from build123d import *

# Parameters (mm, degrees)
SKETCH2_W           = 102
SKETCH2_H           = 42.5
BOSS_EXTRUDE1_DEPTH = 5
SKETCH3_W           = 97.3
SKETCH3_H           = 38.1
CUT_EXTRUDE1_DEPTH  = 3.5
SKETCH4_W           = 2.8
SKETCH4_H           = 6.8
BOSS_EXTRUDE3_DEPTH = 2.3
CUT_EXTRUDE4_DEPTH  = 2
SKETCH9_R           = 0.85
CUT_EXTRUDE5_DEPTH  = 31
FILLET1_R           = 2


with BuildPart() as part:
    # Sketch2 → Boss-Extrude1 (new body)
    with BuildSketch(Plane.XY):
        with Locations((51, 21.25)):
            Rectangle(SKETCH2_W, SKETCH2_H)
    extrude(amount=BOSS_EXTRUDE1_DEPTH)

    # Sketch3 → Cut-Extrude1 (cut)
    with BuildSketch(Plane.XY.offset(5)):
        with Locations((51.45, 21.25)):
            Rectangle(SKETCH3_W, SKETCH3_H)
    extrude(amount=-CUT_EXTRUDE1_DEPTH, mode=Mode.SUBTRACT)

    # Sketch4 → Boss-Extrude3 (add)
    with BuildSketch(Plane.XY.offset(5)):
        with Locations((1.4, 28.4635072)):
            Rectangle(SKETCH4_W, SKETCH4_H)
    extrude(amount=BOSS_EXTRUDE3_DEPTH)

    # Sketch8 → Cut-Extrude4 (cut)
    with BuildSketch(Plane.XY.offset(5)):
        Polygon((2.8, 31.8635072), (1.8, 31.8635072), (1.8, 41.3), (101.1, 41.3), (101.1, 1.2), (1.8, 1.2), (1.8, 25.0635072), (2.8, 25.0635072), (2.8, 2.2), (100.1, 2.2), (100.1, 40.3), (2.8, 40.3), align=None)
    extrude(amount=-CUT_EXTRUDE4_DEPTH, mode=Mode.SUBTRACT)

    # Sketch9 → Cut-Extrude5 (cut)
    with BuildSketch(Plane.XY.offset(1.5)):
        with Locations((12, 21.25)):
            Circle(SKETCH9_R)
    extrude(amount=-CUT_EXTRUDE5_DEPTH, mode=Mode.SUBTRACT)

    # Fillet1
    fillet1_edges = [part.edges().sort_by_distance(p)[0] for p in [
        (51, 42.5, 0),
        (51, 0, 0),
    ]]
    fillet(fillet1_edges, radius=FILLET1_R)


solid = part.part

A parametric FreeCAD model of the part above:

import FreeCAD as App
import Part
import Sketcher

V = App.Vector
Q = App.Units.Quantity


def edges_at(feature, points):
    """Names of the edges that pass closest to the given points."""
    edges = feature.Shape.Edges
    near = lambda p: min(range(len(edges)), key=lambda i: edges[i].distToShape(Part.Vertex(*p))[0])
    return sorted({f"Edge{near(p) + 1}" for p in points})


def add_polygon(sketch, points):
    """Adds a closed chain of lines whose ends are joined by coincident constraints."""
    first, n = sketch.GeometryCount, len(points)
    for a, b in zip(points, points[1:] + points[:1]):
        sketch.addGeometry(Part.LineSegment(App.Vector(*a, 0), App.Vector(*b, 0)), False)
    for i in range(n):
        sketch.addConstraint(Sketcher.Constraint("Coincident", first + i, 2, first + (i + 1) % n, 1))

doc = App.newDocument("Part")
params = doc.addObject("Spreadsheet::Sheet", "Params")
for row, (alias, value) in enumerate([
    ("sketch1_width", "102 mm"),
    ("sketch1_height", "42.5 mm"),
    ("pad1_length", "5 mm"),
    ("sketch2_width", "97.3 mm"),
    ("sketch2_height", "38.1 mm"),
    ("pocket1_length", "3.5 mm"),
    ("sketch3_width", "2.8 mm"),
    ("sketch3_height", "6.8 mm"),
    ("pad2_length", "2.3 mm"),
    ("sketch4_width", "1 mm"),
    ("sketch4_width2", "97.3 mm"),
    ("sketch4_width3", "99.3 mm"),
    ("sketch4_height", "38.1 mm"),
    ("sketch4_height2", "40.1 mm"),
    ("pocket2_length", "2 mm"),
    ("sketch5_diameter", "1.7 mm"),
    ("pocket3_length", "31 mm"),
    ("fillet_radius", "2 mm"),
], start=1):
    params.set(f"A{row}", alias)
    params.set(f"B{row}", "=" + value)
    params.setAlias(f"B{row}", alias)

body = doc.addObject("PartDesign::Body", "Body")

sketch1 = body.newObject("Sketcher::SketchObject", "Sketch")
sketch1.AttachmentSupport = (doc.getObject("XY_Plane"), [""])
sketch1.MapMode = "FlatFace"
add_polygon(sketch1, [(0, 42), (0, 0), (102, 0), (102, 42)])
sketch1.addConstraint(Sketcher.Constraint("Vertical", 0))
sketch1.addConstraint(Sketcher.Constraint("Horizontal", 1))
sketch1.addConstraint(Sketcher.Constraint("Vertical", 2))
sketch1.addConstraint(Sketcher.Constraint("Horizontal", 3))
sketch1.addConstraint(Sketcher.Constraint("Coincident", 0, 2, -1, 1))
sketch1.addConstraint(Sketcher.Constraint("DistanceX", 1, 1, 1, 2, Q("102 mm")))
sketch1.addConstraint(Sketcher.Constraint("DistanceY", 0, 2, 0, 1, Q("42.5 mm")))
sketch1.setExpression("Constraints[9]", "Params.sketch1_width")
sketch1.setExpression("Constraints[10]", "Params.sketch1_height")
pad1 = body.newObject("PartDesign::Pad", "Pad")
pad1.Profile = sketch1
pad1.setExpression("Length", "Params.pad1_length")

sketch2 = body.newObject("Sketcher::SketchObject", "Sketch001")
sketch2.AttachmentSupport = (doc.getObject("XY_Plane"), [""])
sketch2.MapMode = "FlatFace"
sketch2.AttachmentOffset = App.Placement(V(0, 0, 5), App.Rotation())
add_polygon(sketch2, [(3, 40), (3, 2), (100, 2), (100, 40)])
sketch2.addConstraint(Sketcher.Constraint("Vertical", 0))
sketch2.addConstraint(Sketcher.Constraint("Horizontal", 1))
sketch2.addConstraint(Sketcher.Constraint("Vertical", 2))
sketch2.addConstraint(Sketcher.Constraint("Horizontal", 3))
sketch2.addConstraint(Sketcher.Constraint("DistanceX", 1, 1, 1, 2, Q("97.3 mm")))
sketch2.addConstraint(Sketcher.Constraint("DistanceY", 0, 2, 0, 1, Q("38.1 mm")))
sketch2.addConstraint(Sketcher.Constraint("DistanceX", -1, 1, 0, 2, Q("2.8 mm")))
sketch2.addConstraint(Sketcher.Constraint("DistanceY", -1, 1, 0, 2, Q("2.2 mm")))
sketch2.setExpression("Constraints[8]", "Params.sketch2_width")
sketch2.setExpression("Constraints[9]", "Params.sketch2_height")
pocket1 = body.newObject("PartDesign::Pocket", "Pocket")
pocket1.Profile = sketch2
pocket1.setExpression("Length", "Params.pocket1_length")

sketch3 = body.newObject("Sketcher::SketchObject", "Sketch002")
sketch3.AttachmentSupport = (doc.getObject("XY_Plane"), [""])
sketch3.MapMode = "FlatFace"
sketch3.AttachmentOffset = App.Placement(V(0, 0, 5), App.Rotation())
add_polygon(sketch3, [(0, 31.9), (0, 25.1), (2.8, 25.1), (2.8, 31.9)])
sketch3.addConstraint(Sketcher.Constraint("Vertical", 0))
sketch3.addConstraint(Sketcher.Constraint("Horizontal", 1))
sketch3.addConstraint(Sketcher.Constraint("Vertical", 2))
sketch3.addConstraint(Sketcher.Constraint("Horizontal", 3))
sketch3.addConstraint(Sketcher.Constraint("PointOnObject", 0, 2, -2))
sketch3.addConstraint(Sketcher.Constraint("DistanceX", 1, 1, 1, 2, Q("2.8 mm")))
sketch3.addConstraint(Sketcher.Constraint("DistanceY", 0, 2, 0, 1, Q("6.8 mm")))
sketch3.addConstraint(Sketcher.Constraint("DistanceY", -1, 1, 0, 2, Q("25.063507 mm")))
sketch3.setExpression("Constraints[9]", "Params.sketch3_width")
sketch3.setExpression("Constraints[10]", "Params.sketch3_height")
pad2 = body.newObject("PartDesign::Pad", "Pad001")
pad2.Profile = sketch3
pad2.setExpression("Length", "Params.pad2_length")

sketch4 = body.newObject("Sketcher::SketchObject", "Sketch003")
sketch4.AttachmentSupport = (doc.getObject("XY_Plane"), [""])
sketch4.MapMode = "FlatFace"
sketch4.AttachmentOffset = App.Placement(V(0, 0, 5), App.Rotation())
add_polygon(sketch4, [(1.8, 31.9), (2.8, 31.9), (2.8, 40.3), (100.1, 40.3), (100.1, 2.2), (2.8, 2.2), (2.8, 25.1), (1.8, 25.1), (1.8, 1.2), (101.1, 1.2), (101.1, 41.3), (1.8, 41.3)])
sketch4.addConstraint(Sketcher.Constraint("Horizontal", 0))
sketch4.addConstraint(Sketcher.Constraint("Vertical", 1))
sketch4.addConstraint(Sketcher.Constraint("Horizontal", 2))
sketch4.addConstraint(Sketcher.Constraint("Vertical", 3))
sketch4.addConstraint(Sketcher.Constraint("Horizontal", 4))
sketch4.addConstraint(Sketcher.Constraint("Vertical", 5))
sketch4.addConstraint(Sketcher.Constraint("Horizontal", 6))
sketch4.addConstraint(Sketcher.Constraint("Vertical", 7))
sketch4.addConstraint(Sketcher.Constraint("Horizontal", 8))
sketch4.addConstraint(Sketcher.Constraint("Vertical", 9))
sketch4.addConstraint(Sketcher.Constraint("Horizontal", 10))
sketch4.addConstraint(Sketcher.Constraint("Vertical", 11))
sketch4.addConstraint(Sketcher.Constraint("Vertical", 1, 2, 4, 2))
sketch4.addConstraint(Sketcher.Constraint("Vertical", 7, 2, 10, 2))
sketch4.addConstraint(Sketcher.Constraint("DistanceX", 0, 1, 0, 2, Q("1 mm")))
sketch4.addConstraint(Sketcher.Constraint("DistanceX", 2, 1, 2, 2, Q("97.3 mm")))
sketch4.addConstraint(Sketcher.Constraint("DistanceX", 8, 1, 8, 2, Q("99.3 mm")))
sketch4.addConstraint(Sketcher.Constraint("DistanceY", 3, 2, 3, 1, Q("38.1 mm")))
sketch4.addConstraint(Sketcher.Constraint("DistanceY", 9, 1, 9, 2, Q("40.1 mm")))
sketch4.addConstraint(Sketcher.Constraint("DistanceY", 7, 2, 4, 2, Q("1 mm")))
sketch4.addConstraint(Sketcher.Constraint("DistanceX", -1, 1, 0, 2, Q("2.8 mm")))
sketch4.addConstraint(Sketcher.Constraint("DistanceY", -1, 1, 1, 2, Q("40.3 mm")))
sketch4.addConstraint(Sketcher.Constraint("DistanceY", 5, 2, 0, 2, Q("6.8 mm")))
sketch4.addConstraint(Sketcher.Constraint("DistanceY", 1, 1, 1, 2, Q("8.436493 mm")))
sketch4.setExpression("Constraints[26]", "Params.sketch4_width")
sketch4.setExpression("Constraints[27]", "Params.sketch4_width2")
sketch4.setExpression("Constraints[28]", "Params.sketch4_width3")
sketch4.setExpression("Constraints[29]", "Params.sketch4_height")
sketch4.setExpression("Constraints[30]", "Params.sketch4_height2")
pocket2 = body.newObject("PartDesign::Pocket", "Pocket001")
pocket2.Profile = sketch4
pocket2.setExpression("Length", "Params.pocket2_length")

sketch5 = body.newObject("Sketcher::SketchObject", "Sketch004")
sketch5.AttachmentSupport = (doc.getObject("XY_Plane"), [""])
sketch5.MapMode = "FlatFace"
sketch5.AttachmentOffset = App.Placement(V(0, 0, 1.5), App.Rotation())
sketch5.addGeometry(Part.Circle(V(12, 21.2, 0), V(0, 0, 1), 0.8), False)
sketch5.addConstraint(Sketcher.Constraint("Diameter", 0, Q("1.7 mm")))
sketch5.addConstraint(Sketcher.Constraint("DistanceX", -1, 1, 0, 3, Q("12 mm")))
sketch5.addConstraint(Sketcher.Constraint("DistanceY", -1, 1, 0, 3, Q("21.25 mm")))
sketch5.setExpression("Constraints[0]", "Params.sketch5_diameter")
pocket3 = body.newObject("PartDesign::Pocket", "Pocket002")
pocket3.Profile = sketch5
pocket3.setExpression("Length", "Params.pocket3_length")
doc.recompute()

fillet = body.newObject("PartDesign::Fillet", "Fillet")
fillet.Base = (pocket3, edges_at(pocket3, [(51, 42.5, 0), (51, 0, 0)]))
fillet.setExpression("Radius", "Params.fillet_radius")

doc.recompute()
